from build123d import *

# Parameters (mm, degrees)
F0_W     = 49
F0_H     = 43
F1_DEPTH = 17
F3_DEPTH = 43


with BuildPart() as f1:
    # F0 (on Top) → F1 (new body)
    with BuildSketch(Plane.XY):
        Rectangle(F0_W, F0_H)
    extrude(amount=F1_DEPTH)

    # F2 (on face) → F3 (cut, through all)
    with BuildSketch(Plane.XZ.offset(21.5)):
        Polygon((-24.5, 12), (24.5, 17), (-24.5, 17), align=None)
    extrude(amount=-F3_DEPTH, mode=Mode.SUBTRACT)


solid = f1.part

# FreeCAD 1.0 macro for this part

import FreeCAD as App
import Part
import Sketcher

V = App.Vector
Q = App.Units.Quantity


def add_polygon(sketch, points):
    """Adds a closed chain of lines whose ends are joined by coincident constraints."""
    first, n = sketch.GeometryCount, len(points)
    for a, b in zip(points, points[1:] + points[:1]):
        sketch.addGeometry(Part.LineSegment(App.Vector(*a, 0), App.Vector(*b, 0)), False)
    for i in range(n):
        sketch.addConstraint(Sketcher.Constraint("Coincident", first + i, 2, first + (i + 1) % n, 1))

doc = App.newDocument("Part")
body = doc.addObject("PartDesign::Body", "Body")

# Sketch on XY plane
sketch1 = doc.addObject("Sketcher::SketchObject", "Sketch")
body.addObject(sketch1)
sketch1.AttachmentSupport = (doc.XY_Plane, [""])
sketch1.MapMode = "FlatFace"
add_polygon(sketch1, [(-24, 22), (-24, -22), (24, -22), (24, 22)])  # lines 0-3
sketch1.addConstraint(Sketcher.Constraint("Vertical", 0))
sketch1.addConstraint(Sketcher.Constraint("Horizontal", 1))
sketch1.addConstraint(Sketcher.Constraint("Vertical", 2))
sketch1.addConstraint(Sketcher.Constraint("Horizontal", 3))
sketch1.addConstraint(Sketcher.Constraint("Symmetric", 0, 2, 2, 2, -1, 1))
sketch1.addConstraint(Sketcher.Constraint("DistanceX", 1, 1, 1, 2, Q("49 mm")))
sketch1.addConstraint(Sketcher.Constraint("DistanceY", 0, 2, 0, 1, Q("43 mm")))
pad1 = doc.addObject("PartDesign::Pad", "Pad")
body.addObject(pad1)
pad1.Profile = sketch1
pad1.Length = 17

# Sketch on XZ plane
sketch2 = doc.addObject("Sketcher::SketchObject", "Sketch001")
body.addObject(sketch2)
sketch2.AttachmentSupport = (doc.XZ_Plane, [""])
sketch2.MapMode = "FlatFace"
sketch2.AttachmentOffset = App.Placement(V(0, 0, 21.5), App.Rotation())
add_polygon(sketch2, [(-24, 12), (24, 17), (-24, 17)])  # lines 0-2
sketch2.addConstraint(Sketcher.Constraint("Horizontal", 1))
sketch2.addConstraint(Sketcher.Constraint("Vertical", 2))
sketch2.addConstraint(Sketcher.Constraint("DistanceX", 1, 2, 1, 1, Q("49 mm")))
sketch2.addConstraint(Sketcher.Constraint("DistanceY", 2, 2, 2, 1, Q("5 mm")))
sketch2.addConstraint(Sketcher.Constraint("DistanceY", -1, 1, 0, 2, Q("17 mm")))
sketch2.addConstraint(Sketcher.Constraint("DistanceX", -1, 1, 0, 2, Q("24.5 mm")))
pocket1 = doc.addObject("PartDesign::Pocket", "Pocket")
body.addObject(pocket1)
pocket1.Profile = sketch2
pocket1.Type = "ThroughAll"

doc.recompute()
